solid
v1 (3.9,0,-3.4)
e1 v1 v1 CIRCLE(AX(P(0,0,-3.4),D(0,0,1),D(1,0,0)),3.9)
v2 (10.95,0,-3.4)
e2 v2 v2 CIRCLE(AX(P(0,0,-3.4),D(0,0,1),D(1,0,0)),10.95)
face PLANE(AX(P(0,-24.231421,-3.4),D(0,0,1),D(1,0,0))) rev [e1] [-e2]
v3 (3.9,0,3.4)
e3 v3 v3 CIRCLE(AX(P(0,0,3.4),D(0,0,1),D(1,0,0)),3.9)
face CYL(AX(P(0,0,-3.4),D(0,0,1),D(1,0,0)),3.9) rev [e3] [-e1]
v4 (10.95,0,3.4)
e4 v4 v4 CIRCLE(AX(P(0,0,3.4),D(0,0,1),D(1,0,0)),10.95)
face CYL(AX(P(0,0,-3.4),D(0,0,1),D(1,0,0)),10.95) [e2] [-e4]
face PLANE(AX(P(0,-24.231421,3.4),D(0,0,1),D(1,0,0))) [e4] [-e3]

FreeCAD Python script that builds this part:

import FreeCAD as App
import Part
import Sketcher
Q = App.Units.Quantity

doc = App.newDocument("Part")
body = doc.addObject("PartDesign::Body", "Body")

# Sketch on XY plane
sketch1 = body.newObject("Sketcher::SketchObject", "Sketch")
sketch1.AttachmentSupport = (doc.getObject("XY_Plane"), [""])
sketch1.MapMode = "FlatFace"
sketch1.addGeometry(Part.Circle(App.Vector(0, 0, 0), App.Vector(0, 0, 1), 10.95), False)
sketch1.addGeometry(Part.Circle(App.Vector(0, 0, 0), App.Vector(0, 0, 1), 3.9), False)
sketch1.addConstraint(Sketcher.Constraint("Coincident", 0, 3, -1, 1))
sketch1.addConstraint(Sketcher.Constraint("Coincident", 1, 3, -1, 1))
sketch1.addConstraint(Sketcher.Constraint("Diameter", 0, Q("21.9 mm")))
sketch1.addConstraint(Sketcher.Constraint("Diameter", 1, Q("7.8 mm")))
pad1 = body.newObject("PartDesign::Pad", "Pad")
pad1.Profile = sketch1
pad1.Type = "TwoLengths"
pad1.Length = 3.4
pad1.Length2 = 3.4

doc.recompute()
